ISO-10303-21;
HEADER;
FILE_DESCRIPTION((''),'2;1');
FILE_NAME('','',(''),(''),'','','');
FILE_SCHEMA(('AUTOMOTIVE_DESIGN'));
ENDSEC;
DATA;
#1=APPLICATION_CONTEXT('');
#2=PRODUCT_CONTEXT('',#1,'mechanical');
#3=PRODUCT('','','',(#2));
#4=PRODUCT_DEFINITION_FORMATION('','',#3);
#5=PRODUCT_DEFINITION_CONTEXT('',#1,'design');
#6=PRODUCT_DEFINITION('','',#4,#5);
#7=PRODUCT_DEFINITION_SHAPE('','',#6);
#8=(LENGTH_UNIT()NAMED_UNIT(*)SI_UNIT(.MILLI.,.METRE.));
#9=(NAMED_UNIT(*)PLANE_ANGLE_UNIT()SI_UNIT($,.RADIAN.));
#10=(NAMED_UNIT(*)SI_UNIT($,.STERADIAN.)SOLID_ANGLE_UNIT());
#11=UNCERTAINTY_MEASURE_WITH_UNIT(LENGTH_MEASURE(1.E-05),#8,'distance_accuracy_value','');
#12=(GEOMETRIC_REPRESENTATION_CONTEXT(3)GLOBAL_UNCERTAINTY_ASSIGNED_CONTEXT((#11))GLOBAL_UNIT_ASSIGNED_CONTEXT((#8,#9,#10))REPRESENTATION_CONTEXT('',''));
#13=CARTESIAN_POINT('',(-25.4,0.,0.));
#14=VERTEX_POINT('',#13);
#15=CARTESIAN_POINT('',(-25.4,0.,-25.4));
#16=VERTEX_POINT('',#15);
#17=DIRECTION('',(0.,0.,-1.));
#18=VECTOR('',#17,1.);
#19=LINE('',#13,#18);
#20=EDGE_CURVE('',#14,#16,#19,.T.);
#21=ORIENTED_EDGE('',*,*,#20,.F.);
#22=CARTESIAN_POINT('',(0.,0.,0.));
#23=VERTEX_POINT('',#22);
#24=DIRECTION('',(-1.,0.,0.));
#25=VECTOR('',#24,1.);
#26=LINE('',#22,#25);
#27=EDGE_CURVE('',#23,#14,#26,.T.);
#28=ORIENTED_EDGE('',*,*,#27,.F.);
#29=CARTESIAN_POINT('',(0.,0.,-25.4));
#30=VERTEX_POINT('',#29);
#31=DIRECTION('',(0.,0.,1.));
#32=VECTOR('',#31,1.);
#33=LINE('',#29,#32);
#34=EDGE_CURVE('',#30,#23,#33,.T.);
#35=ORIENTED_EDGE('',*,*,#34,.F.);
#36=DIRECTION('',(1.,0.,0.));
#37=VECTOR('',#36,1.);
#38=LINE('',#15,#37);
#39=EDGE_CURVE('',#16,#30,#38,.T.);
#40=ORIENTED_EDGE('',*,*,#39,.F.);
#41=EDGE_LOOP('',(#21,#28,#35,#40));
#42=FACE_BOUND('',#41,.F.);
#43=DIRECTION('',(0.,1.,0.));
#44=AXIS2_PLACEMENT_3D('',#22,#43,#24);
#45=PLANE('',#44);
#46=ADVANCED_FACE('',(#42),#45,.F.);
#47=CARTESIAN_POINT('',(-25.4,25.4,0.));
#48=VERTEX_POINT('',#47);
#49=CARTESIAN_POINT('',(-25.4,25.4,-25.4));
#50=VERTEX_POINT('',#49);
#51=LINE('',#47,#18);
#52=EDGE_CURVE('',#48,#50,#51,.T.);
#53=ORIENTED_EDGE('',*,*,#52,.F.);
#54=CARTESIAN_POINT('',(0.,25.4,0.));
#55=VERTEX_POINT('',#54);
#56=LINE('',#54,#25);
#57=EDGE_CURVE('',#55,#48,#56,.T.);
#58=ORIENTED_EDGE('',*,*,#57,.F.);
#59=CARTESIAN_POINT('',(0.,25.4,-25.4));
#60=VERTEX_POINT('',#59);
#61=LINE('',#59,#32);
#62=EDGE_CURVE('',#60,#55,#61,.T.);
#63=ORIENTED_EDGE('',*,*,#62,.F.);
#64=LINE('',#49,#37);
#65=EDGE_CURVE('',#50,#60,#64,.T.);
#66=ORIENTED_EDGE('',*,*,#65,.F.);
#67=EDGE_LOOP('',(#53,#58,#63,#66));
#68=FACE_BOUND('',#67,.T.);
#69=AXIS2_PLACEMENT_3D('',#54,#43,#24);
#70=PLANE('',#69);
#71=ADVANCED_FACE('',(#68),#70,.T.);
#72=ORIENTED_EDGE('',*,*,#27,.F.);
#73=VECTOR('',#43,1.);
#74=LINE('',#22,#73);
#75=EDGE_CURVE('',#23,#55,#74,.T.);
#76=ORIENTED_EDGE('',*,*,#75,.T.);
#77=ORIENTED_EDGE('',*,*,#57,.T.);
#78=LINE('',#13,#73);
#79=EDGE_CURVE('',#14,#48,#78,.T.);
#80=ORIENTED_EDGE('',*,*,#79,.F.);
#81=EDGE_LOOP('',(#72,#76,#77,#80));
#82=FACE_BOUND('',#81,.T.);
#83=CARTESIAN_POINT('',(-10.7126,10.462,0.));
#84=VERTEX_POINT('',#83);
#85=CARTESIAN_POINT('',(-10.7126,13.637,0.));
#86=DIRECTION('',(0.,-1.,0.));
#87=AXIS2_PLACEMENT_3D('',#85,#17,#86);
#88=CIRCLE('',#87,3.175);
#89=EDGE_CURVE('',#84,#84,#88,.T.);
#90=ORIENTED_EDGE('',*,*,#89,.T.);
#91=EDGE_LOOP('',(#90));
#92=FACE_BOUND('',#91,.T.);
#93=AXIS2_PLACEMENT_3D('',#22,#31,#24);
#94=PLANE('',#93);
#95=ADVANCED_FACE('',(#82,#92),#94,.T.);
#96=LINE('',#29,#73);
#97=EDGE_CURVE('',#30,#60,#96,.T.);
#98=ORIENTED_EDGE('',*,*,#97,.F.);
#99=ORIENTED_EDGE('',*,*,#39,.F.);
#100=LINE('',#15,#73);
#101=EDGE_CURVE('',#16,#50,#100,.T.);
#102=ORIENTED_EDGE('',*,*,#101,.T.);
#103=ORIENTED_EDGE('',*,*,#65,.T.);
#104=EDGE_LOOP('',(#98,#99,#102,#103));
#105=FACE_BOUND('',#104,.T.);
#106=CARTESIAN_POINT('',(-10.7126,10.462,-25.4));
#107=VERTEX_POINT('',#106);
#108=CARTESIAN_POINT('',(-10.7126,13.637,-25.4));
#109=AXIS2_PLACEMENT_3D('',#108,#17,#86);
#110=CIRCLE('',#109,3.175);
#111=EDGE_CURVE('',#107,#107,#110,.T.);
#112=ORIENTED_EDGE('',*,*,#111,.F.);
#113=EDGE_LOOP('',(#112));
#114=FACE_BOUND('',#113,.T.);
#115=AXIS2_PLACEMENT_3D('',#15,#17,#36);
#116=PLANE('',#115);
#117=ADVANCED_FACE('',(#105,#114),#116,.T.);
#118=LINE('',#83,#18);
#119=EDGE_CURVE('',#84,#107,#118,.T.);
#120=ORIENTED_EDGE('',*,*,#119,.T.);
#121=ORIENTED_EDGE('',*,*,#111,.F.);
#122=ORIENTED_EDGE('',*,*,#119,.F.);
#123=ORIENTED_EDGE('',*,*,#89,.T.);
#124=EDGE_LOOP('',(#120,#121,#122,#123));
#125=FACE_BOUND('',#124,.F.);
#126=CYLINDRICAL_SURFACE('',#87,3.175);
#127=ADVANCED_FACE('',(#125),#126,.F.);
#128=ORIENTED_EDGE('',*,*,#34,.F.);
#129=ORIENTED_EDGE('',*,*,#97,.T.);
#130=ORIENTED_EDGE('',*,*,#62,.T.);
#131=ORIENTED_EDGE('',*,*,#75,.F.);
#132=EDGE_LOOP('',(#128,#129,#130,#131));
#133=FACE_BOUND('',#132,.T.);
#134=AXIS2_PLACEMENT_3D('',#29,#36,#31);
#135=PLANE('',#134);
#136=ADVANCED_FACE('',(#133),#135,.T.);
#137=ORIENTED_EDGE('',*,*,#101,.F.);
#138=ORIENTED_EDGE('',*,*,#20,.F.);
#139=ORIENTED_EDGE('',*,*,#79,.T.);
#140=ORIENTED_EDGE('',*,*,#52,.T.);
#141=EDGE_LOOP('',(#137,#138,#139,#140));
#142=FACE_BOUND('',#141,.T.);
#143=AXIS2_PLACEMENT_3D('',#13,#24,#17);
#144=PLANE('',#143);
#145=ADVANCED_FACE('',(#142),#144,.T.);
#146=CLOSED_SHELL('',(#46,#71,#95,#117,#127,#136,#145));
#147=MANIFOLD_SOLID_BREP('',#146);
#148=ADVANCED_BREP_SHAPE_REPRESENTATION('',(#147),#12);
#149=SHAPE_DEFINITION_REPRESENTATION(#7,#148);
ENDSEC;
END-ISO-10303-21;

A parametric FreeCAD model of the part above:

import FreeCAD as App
import Part
import Sketcher
from FreeCAD import Vector
Q = App.Units.Quantity

doc = App.newDocument("Part")
body = doc.addObject("PartDesign::Body", "Body")

# Sketch on XZ plane
sketch1 = body.newObject("Sketcher::SketchObject", "Sketch")
sketch1.AttachmentSupport = (doc.getObject("XZ_Plane"), [""])
sketch1.MapMode = "FlatFace"
sketch1.addGeometry(Part.LineSegment(Vector(-25, 0, 0), Vector(0, 0, 0)), False)
sketch1.addGeometry(Part.LineSegment(Vector(0, 0, 0), Vector(0, -25, 0)), False)
sketch1.addGeometry(Part.LineSegment(Vector(0, -25, 0), Vector(-25, -25, 0)), False)
sketch1.addGeometry(Part.LineSegment(Vector(-25, -25, 0), Vector(-25, 0, 0)), False)
sketch1.addConstraint(Sketcher.Constraint("Coincident", 0, 2, 1, 1))
sketch1.addConstraint(Sketcher.Constraint("Coincident", 1, 2, 2, 1))
sketch1.addConstraint(Sketcher.Constraint("Coincident", 2, 2, 3, 1))
sketch1.addConstraint(Sketcher.Constraint("Coincident", 3, 2, 0, 1))
sketch1.addConstraint(Sketcher.Constraint("Horizontal", 0))
sketch1.addConstraint(Sketcher.Constraint("Vertical", 1))
sketch1.addConstraint(Sketcher.Constraint("Horizontal", 2))
sketch1.addConstraint(Sketcher.Constraint("Vertical", 3))
sketch1.addConstraint(Sketcher.Constraint("Coincident", 0, 2, -1, 1))
sketch1.addConstraint(Sketcher.Constraint("Equal", 2, 1))
sketch1.addConstraint(Sketcher.Constraint("DistanceX", 0, 1, 0, 2, Q("1 in")))
pad1 = body.newObject("PartDesign::Pad", "Pad")
pad1.Profile = sketch1
pad1.Length = Q("1 in")
pad1.Reversed = True

# Sketch on XY plane
sketch2 = body.newObject("Sketcher::SketchObject", "Sketch001")
sketch2.AttachmentSupport = (doc.getObject("XY_Plane"), [""])
sketch2.MapMode = "FlatFace"
sketch2.addGeometry(Part.Circle(Vector(-10.7, 13.6, 0), Vector(0, 0, 1), 3.2), False)
sketch2.addConstraint(Sketcher.Constraint("Diameter", 0, Q("0.25 in")))
sketch2.addConstraint(Sketcher.Constraint("DistanceY", -1, 1, 0, 3, Q("0.5369 in")))
sketch2.addConstraint(Sketcher.Constraint("DistanceX", 0, 3, -1, 1, Q("10.7126 mm")))
doc.recompute()
hole = body.newObject("PartDesign::Hole", "Hole")
hole.Profile = sketch2
hole.ThreadType = "None"
hole.Diameter = Q("0.25 in")
hole.DepthType = "Dimension"
hole.Depth = Q("1.4375 in")
hole.DrillPoint = "Angled"
hole.DrillPointAngle = 118

doc.recompute()
